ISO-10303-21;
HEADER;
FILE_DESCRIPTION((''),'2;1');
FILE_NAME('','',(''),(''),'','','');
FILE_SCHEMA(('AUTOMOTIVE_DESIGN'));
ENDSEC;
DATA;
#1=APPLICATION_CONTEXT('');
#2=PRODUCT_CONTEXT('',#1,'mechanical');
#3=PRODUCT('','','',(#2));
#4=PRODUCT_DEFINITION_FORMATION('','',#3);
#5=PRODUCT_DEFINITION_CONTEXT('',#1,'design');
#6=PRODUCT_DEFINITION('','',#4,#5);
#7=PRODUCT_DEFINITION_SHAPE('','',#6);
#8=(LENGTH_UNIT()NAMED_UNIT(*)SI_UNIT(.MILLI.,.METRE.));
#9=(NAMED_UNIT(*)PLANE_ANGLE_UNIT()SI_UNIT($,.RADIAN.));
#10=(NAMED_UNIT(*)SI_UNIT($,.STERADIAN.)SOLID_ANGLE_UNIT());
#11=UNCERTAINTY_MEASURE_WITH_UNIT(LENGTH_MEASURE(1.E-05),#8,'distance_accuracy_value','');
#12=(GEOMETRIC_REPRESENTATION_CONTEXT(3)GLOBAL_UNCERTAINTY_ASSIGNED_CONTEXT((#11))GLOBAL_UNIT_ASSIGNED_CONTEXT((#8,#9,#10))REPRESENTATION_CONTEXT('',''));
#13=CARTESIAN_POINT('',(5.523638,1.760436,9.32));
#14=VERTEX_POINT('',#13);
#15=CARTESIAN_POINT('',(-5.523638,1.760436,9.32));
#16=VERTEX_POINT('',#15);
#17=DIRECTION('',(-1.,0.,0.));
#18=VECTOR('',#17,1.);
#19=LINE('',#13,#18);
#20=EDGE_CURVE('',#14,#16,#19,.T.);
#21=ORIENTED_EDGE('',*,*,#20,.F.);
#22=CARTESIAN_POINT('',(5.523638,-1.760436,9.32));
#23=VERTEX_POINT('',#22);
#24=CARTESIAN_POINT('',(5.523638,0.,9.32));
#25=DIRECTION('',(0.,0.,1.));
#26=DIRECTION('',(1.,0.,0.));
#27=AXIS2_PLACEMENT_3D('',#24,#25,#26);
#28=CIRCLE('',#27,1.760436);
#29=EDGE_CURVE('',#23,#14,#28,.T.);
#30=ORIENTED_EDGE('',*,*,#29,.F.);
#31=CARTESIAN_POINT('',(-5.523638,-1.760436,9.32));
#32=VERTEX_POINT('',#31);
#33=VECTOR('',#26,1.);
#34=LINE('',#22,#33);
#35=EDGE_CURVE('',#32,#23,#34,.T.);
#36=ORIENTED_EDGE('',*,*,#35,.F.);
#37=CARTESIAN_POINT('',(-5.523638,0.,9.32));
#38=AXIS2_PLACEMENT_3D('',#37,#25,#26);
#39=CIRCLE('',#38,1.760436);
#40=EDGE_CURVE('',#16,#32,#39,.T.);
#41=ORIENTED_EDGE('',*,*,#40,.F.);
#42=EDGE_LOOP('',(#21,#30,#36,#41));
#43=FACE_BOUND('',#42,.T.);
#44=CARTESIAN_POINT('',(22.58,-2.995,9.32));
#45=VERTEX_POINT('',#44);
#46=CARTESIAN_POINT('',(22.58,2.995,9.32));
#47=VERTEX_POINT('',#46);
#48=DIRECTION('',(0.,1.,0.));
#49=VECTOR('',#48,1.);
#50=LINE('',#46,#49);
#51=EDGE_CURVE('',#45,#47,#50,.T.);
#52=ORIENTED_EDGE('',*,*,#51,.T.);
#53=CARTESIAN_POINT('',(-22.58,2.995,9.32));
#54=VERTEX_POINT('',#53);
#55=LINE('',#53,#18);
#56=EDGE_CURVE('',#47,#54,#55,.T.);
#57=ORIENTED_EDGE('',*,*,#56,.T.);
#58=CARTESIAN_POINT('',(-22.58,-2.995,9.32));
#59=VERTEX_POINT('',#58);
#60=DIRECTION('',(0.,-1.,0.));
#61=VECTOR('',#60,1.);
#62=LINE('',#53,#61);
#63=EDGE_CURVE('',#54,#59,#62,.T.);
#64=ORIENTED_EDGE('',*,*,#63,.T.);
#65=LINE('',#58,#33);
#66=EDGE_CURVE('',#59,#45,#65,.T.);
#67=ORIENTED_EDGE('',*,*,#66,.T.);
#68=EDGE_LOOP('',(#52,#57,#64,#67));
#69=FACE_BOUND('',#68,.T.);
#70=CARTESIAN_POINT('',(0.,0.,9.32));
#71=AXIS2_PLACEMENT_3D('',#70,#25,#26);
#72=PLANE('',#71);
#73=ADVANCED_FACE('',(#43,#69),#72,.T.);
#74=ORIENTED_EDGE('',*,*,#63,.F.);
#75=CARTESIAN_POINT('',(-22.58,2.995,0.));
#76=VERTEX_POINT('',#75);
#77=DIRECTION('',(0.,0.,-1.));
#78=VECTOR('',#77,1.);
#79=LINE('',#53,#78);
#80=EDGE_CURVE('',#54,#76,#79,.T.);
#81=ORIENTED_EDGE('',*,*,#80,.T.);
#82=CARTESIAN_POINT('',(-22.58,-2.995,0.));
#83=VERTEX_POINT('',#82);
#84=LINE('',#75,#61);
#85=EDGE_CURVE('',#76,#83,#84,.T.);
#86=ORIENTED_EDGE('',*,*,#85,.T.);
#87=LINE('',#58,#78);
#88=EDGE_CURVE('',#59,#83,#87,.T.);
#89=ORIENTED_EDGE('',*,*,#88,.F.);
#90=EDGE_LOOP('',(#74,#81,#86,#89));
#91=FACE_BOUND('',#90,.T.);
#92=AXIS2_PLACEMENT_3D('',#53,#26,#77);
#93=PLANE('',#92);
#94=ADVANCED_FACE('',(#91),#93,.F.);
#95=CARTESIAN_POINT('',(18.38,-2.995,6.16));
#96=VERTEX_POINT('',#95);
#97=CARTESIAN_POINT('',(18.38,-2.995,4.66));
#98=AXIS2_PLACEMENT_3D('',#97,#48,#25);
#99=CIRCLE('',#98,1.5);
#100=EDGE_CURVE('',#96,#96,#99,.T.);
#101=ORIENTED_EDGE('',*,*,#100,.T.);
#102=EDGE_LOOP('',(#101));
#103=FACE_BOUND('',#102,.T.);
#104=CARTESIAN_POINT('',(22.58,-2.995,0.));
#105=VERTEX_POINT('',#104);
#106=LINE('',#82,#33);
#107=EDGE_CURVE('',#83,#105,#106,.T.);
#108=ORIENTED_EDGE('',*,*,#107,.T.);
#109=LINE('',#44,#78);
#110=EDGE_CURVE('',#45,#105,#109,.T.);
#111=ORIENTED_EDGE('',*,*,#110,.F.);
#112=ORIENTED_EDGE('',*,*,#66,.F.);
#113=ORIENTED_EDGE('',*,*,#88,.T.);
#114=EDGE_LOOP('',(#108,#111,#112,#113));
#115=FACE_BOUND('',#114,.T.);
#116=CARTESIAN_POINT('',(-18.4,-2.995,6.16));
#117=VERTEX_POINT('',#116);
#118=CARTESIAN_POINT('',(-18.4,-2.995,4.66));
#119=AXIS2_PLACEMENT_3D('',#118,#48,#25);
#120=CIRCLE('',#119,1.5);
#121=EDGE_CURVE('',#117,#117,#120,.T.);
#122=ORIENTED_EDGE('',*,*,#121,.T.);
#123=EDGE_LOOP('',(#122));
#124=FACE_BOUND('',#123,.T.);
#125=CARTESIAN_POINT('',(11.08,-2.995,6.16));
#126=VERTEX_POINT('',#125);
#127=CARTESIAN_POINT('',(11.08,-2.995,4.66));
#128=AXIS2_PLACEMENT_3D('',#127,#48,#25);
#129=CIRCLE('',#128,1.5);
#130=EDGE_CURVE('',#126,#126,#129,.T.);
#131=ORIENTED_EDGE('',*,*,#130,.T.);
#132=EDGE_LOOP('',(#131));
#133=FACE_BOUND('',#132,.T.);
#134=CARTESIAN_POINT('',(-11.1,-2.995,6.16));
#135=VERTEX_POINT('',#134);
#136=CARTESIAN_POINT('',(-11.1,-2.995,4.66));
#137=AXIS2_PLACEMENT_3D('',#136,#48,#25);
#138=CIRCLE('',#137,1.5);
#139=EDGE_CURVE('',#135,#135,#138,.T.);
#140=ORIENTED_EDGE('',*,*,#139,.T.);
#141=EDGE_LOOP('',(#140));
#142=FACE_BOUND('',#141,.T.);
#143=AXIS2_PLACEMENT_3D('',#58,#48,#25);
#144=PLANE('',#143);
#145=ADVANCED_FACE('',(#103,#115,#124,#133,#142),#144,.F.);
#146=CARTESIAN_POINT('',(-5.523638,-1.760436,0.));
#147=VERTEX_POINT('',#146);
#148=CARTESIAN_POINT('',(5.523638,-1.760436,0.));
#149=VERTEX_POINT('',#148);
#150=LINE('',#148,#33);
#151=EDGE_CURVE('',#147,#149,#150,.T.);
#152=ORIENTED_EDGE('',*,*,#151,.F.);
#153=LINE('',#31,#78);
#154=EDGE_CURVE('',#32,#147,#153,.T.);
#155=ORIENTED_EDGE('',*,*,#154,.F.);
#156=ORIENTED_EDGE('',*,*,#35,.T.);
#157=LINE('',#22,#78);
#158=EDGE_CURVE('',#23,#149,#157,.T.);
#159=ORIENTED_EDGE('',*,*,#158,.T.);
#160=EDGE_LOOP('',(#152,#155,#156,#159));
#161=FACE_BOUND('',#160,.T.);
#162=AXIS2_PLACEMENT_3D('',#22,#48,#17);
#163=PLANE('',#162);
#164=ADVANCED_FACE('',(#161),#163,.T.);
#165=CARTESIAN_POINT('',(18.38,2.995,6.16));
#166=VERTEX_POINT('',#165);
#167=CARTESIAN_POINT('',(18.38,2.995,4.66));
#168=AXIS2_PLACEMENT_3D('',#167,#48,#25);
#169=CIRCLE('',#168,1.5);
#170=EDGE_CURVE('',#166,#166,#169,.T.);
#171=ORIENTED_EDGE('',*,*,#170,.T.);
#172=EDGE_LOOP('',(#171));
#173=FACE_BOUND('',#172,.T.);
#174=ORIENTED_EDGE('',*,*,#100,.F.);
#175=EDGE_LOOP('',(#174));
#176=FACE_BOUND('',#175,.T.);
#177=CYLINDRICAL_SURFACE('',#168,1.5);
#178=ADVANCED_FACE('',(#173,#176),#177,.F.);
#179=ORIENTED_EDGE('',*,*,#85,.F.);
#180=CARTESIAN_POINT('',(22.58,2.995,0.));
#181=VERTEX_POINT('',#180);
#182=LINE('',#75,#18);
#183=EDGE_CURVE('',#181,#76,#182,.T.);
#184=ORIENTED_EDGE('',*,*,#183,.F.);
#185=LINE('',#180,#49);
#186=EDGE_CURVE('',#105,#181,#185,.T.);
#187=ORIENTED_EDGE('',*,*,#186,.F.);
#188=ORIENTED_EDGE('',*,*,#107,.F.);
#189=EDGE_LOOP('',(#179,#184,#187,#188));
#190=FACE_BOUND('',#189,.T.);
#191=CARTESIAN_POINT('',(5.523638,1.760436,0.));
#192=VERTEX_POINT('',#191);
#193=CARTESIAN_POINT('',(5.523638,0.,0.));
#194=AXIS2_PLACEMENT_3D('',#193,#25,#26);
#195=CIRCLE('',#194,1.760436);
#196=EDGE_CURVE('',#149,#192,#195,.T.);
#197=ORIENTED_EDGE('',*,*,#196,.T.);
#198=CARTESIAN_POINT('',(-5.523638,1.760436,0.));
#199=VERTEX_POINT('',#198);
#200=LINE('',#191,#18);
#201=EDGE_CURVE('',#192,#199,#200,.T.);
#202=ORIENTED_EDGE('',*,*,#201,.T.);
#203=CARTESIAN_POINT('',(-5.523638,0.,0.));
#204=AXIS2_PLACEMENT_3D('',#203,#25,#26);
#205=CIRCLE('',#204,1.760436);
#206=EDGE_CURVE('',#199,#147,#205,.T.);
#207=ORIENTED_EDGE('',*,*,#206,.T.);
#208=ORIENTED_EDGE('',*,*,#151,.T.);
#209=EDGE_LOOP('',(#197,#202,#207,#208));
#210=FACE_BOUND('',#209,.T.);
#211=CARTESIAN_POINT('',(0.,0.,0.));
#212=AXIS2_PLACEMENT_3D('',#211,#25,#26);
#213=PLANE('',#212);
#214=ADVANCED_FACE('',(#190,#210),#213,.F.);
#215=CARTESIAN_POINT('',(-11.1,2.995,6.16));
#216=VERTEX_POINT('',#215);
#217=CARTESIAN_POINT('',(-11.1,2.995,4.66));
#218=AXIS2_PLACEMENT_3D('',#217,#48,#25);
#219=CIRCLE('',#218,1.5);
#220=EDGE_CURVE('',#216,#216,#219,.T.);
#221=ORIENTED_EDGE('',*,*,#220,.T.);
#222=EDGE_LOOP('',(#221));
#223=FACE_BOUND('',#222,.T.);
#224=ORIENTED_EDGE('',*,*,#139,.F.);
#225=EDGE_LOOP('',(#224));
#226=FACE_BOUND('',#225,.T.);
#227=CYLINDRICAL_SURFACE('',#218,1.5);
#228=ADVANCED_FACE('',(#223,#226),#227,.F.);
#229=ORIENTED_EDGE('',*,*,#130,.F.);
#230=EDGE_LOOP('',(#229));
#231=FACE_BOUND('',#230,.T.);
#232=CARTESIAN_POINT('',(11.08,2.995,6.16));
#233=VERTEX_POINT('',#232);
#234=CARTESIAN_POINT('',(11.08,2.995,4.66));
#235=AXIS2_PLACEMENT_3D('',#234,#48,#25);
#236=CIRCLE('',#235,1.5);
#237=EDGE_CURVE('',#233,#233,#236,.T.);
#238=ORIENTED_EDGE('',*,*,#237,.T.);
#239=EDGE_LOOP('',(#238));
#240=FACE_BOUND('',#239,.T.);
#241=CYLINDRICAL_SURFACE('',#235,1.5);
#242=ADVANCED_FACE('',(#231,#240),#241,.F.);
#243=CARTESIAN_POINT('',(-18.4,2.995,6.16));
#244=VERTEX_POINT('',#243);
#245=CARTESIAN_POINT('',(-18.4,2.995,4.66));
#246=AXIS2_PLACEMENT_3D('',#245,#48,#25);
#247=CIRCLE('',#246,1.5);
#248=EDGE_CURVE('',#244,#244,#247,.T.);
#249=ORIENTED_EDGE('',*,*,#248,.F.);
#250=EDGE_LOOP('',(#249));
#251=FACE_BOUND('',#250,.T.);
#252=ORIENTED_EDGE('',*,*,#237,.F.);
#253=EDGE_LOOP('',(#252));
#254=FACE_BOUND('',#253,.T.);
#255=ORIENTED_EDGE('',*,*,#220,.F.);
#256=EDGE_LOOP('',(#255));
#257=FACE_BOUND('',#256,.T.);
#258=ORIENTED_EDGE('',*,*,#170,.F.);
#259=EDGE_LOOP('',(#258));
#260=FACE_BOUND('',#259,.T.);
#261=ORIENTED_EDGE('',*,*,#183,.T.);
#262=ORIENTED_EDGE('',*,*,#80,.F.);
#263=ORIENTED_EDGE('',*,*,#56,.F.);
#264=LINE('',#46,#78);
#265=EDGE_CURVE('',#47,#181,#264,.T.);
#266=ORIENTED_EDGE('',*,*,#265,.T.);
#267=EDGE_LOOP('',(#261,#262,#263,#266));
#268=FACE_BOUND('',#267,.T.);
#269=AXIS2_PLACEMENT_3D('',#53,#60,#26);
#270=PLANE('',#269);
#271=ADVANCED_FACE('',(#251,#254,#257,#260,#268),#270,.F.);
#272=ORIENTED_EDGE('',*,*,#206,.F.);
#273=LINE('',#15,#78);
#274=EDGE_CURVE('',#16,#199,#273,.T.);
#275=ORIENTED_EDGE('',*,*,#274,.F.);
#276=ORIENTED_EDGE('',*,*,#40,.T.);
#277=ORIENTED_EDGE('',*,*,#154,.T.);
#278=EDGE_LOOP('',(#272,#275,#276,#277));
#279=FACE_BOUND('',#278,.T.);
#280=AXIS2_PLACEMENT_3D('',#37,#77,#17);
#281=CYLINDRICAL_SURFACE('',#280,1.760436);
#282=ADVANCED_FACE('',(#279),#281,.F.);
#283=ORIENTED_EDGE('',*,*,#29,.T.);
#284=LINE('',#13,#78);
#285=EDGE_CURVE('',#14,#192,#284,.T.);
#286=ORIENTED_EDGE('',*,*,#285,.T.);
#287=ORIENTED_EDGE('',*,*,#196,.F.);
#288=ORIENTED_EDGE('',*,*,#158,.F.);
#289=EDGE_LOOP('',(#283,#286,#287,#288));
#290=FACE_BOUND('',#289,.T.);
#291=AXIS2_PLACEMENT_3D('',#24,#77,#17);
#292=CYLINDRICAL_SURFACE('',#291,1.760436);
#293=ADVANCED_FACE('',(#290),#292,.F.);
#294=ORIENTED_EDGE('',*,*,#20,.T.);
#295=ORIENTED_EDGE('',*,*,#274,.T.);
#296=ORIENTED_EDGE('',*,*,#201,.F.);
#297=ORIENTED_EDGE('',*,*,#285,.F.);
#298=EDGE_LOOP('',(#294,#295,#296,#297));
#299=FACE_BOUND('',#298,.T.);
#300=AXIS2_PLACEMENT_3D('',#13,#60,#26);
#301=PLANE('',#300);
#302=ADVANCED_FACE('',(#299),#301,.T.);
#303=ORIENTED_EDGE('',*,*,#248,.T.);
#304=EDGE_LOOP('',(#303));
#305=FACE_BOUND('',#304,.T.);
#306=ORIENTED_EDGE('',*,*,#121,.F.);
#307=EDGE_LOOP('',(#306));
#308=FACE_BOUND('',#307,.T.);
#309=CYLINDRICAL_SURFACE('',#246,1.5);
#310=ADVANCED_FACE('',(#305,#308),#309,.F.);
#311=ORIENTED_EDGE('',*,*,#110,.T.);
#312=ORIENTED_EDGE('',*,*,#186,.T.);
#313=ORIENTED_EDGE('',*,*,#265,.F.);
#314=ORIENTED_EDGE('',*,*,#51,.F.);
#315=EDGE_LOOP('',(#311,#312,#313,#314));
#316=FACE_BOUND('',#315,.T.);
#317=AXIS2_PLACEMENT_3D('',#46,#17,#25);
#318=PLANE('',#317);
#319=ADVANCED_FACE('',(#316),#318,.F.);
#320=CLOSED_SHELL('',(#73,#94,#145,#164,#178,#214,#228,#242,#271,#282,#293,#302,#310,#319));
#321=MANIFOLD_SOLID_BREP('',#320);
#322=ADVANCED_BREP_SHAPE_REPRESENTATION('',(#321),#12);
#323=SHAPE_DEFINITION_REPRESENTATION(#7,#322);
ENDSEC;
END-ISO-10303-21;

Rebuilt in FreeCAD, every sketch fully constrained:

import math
import FreeCAD as App
import Part
import Sketcher
from FreeCAD import Vector


def add_polygon(sketch, points):
    """Adds a closed chain of lines whose ends are joined by coincident constraints."""
    first, n = sketch.GeometryCount, len(points)
    for a, b in zip(points, points[1:] + points[:1]):
        sketch.addGeometry(Part.LineSegment(App.Vector(*a, 0), App.Vector(*b, 0)), False)
    for i in range(n):
        sketch.addConstraint(Sketcher.Constraint("Coincident", first + i, 2, first + (i + 1) % n, 1))

doc = App.newDocument("Part")
params = doc.addObject("Spreadsheet::Sheet", "Params")
for row, (alias, value) in enumerate([
    ("sketch1_width", "45.16 mm"),
    ("sketch1_height", "5.99 mm"),
    ("pad1_length", "9.32 mm"),
    ("sketch2_diameter", "3 mm"),
    ("hole_diameter", "3 mm"),
    ("hole_depth", "10 mm"),
], start=1):
    params.set(f"A{row}", alias)
    params.set(f"B{row}", "=" + value)
    params.setAlias(f"B{row}", alias)

body = doc.addObject("PartDesign::Body", "Body")

# Sketch on XY plane
sketch1 = doc.addObject("Sketcher::SketchObject", "Sketch")
body.addObject(sketch1)
sketch1.AttachmentSupport = (doc.XY_Plane, [""])
sketch1.MapMode = "FlatFace"
add_polygon(sketch1, [(-22.6, 3), (-22.6, -3), (22.6, -3), (22.6, 3)])  # lines 0-3
sketch1.addGeometry(Part.ArcOfCircle(Part.Circle(Vector(5.5, 0, 0), Vector(0, 0, 1), 1.8), math.radians(-90), math.radians(90)), False)  # 4
sketch1.addGeometry(Part.LineSegment(Vector(5.5, -1.8, 0), Vector(-5.5, -1.8, 0)), False)  # 5
sketch1.addGeometry(Part.ArcOfCircle(Part.Circle(Vector(-5.5, 0, 0), Vector(0, 0, 1), 1.8), math.radians(90), math.radians(270)), False)  # 6
sketch1.addGeometry(Part.LineSegment(Vector(-5.5, 1.8, 0), Vector(5.5, 1.8, 0)), False)  # 7
sketch1.addConstraint(Sketcher.Constraint("Tangent", 4, 1, 5, 1))
sketch1.addConstraint(Sketcher.Constraint("Tangent", 5, 2, 6, 2))
sketch1.addConstraint(Sketcher.Constraint("Tangent", 6, 1, 7, 1))
sketch1.addConstraint(Sketcher.Constraint("Tangent", 7, 2, 4, 2))
sketch1.addConstraint(Sketcher.Constraint("Vertical", 0))
sketch1.addConstraint(Sketcher.Constraint("Horizontal", 1))
sketch1.addConstraint(Sketcher.Constraint("Vertical", 2))
sketch1.addConstraint(Sketcher.Constraint("Horizontal", 3))
sketch1.addConstraint(Sketcher.Constraint("Horizontal", 5))
sketch1.addConstraint(Sketcher.Constraint("Horizontal", 7))
sketch1.addConstraint(Sketcher.Constraint("Symmetric", 4, 3, 6, 3, -1, 1))
sketch1.addConstraint(Sketcher.Constraint("Symmetric", 0, 2, 2, 2, -1, 1))
sketch1.addConstraint(Sketcher.Constraint("DistanceX", 1, 1, 1, 2, 45.16))
sketch1.addConstraint(Sketcher.Constraint("DistanceY", 0, 2, 0, 1, 5.99))
sketch1.addConstraint(Sketcher.Constraint("Radius", 4, 1.760436))
sketch1.addConstraint(Sketcher.Constraint("DistanceX", 5, 2, 5, 1, 11.047275))
sketch1.setExpression("Constraints[16]", "Params.sketch1_width")
sketch1.setExpression("Constraints[17]", "Params.sketch1_height")
pad1 = doc.addObject("PartDesign::Pad", "Pad")
body.addObject(pad1)
pad1.Profile = sketch1
pad1.setExpression("Length", "Params.pad1_length")

# Sketch on XZ plane
sketch2 = doc.addObject("Sketcher::SketchObject", "Sketch001")
body.addObject(sketch2)
sketch2.AttachmentSupport = (doc.XZ_Plane, [""])
sketch2.MapMode = "FlatFace"
sketch2.AttachmentOffset = App.Placement(Vector(0, 0, -2.995), App.Rotation())
sketch2.addGeometry(Part.Circle(Vector(-18.4, 4.7, 0), Vector(0, 0, 1), 1.5), False)
sketch2.addGeometry(Part.Circle(Vector(-11.1, 4.7, 0), Vector(0, 0, 1), 1.5), False)
sketch2.addGeometry(Part.Circle(Vector(11.1, 4.7, 0), Vector(0, 0, 1), 1.5), False)
sketch2.addGeometry(Part.Circle(Vector(18.4, 4.7, 0), Vector(0, 0, 1), 1.5), False)
sketch2.addConstraint(Sketcher.Constraint("Equal", 0, 1))
sketch2.addConstraint(Sketcher.Constraint("Equal", 1, 2))
sketch2.addConstraint(Sketcher.Constraint("Equal", 2, 3))
sketch2.addConstraint(Sketcher.Constraint("Horizontal", 0, 3, 1, 3))
sketch2.addConstraint(Sketcher.Constraint("Horizontal", 1, 3, 2, 3))
sketch2.addConstraint(Sketcher.Constraint("Horizontal", 2, 3, 3, 3))
sketch2.addConstraint(Sketcher.Constraint("Diameter", 0, 3.0))
sketch2.addConstraint(Sketcher.Constraint("DistanceX", 0, 3, -1, 1, 18.4))
sketch2.addConstraint(Sketcher.Constraint("DistanceX", 1, 3, -1, 1, 11.1))
sketch2.addConstraint(Sketcher.Constraint("DistanceX", 2, 3, 3, 3, 7.3))
sketch2.addConstraint(Sketcher.Constraint("DistanceY", -1, 1, 0, 3, 4.66))
sketch2.addConstraint(Sketcher.Constraint("DistanceX", -1, 1, 2, 3, 11.08))
sketch2.setExpression("Constraints[6]", "Params.sketch2_diameter")
doc.recompute()
hole = doc.addObject("PartDesign::Hole", "Hole")
body.addObject(hole)
hole.Profile = sketch2
hole.ThreadType = "None"
hole.setExpression("Diameter", "Params.hole_diameter")
hole.DepthType = "Dimension"
hole.setExpression("Depth", "Params.hole_depth")
hole.DrillPoint = "Angled"
hole.DrillPointAngle = 118
hole.Reversed = True

doc.recompute()
